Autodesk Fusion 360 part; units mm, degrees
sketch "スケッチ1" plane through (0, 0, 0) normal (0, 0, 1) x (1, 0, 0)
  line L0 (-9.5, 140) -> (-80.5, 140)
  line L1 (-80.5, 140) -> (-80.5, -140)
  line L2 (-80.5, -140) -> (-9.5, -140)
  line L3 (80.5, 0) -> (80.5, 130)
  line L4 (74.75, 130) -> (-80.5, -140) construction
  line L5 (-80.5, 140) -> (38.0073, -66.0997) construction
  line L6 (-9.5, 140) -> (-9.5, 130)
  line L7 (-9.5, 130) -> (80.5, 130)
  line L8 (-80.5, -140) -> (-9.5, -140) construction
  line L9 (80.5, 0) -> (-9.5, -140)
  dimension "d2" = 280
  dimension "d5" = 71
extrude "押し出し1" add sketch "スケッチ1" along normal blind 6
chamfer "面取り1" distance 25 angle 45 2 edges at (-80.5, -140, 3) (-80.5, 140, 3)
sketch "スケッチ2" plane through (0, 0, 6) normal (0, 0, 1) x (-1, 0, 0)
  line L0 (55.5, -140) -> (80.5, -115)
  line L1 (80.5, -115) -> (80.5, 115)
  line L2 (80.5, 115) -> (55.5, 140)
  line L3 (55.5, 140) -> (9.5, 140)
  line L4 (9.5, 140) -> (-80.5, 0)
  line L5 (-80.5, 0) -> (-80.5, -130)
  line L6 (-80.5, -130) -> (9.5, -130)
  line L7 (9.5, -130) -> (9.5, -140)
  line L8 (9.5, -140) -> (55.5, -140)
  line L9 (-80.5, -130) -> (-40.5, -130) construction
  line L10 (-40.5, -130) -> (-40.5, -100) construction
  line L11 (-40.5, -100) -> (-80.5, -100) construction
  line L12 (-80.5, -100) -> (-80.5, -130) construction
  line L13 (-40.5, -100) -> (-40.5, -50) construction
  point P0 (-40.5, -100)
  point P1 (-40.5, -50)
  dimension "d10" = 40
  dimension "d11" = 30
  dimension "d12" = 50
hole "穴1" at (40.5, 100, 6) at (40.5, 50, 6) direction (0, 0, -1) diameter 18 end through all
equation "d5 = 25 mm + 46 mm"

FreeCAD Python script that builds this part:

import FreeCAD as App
import Part
import Sketcher

V = App.Vector


def edges_at(feature, points):
    """Names of the edges that pass closest to the given points."""
    edges = feature.Shape.Edges
    near = lambda p: min(range(len(edges)), key=lambda i: edges[i].distToShape(Part.Vertex(*p))[0])
    return sorted({f"Edge{near(p) + 1}" for p in points})

doc = App.newDocument("Part")
body = doc.addObject("PartDesign::Body", "Body")

sketch1 = body.newObject("Sketcher::SketchObject", "Sketch")
sketch1.AttachmentSupport = (doc.getObject("XY_Plane"), [""])
sketch1.MapMode = "FlatFace"
sketch1.addGeometry([
    Part.LineSegment(V(-10, 130, 0), V(-10, 140, 0)),
    Part.LineSegment(V(-10, 140, 0), V(-80, 140, 0)),
    Part.LineSegment(V(-80, 140, 0), V(-80, -140, 0)),
    Part.LineSegment(V(-80, -140, 0), V(-10, -140, 0)),
    Part.LineSegment(V(-10, -140, 0), V(80, 0, 0)),
    Part.LineSegment(V(80, 0, 0), V(80, 130, 0)),
    Part.LineSegment(V(80, 130, 0), V(-10, 130, 0)),
], False)
sketch1.addConstraint([
    Sketcher.Constraint("Coincident", 0, 2, 1, 1),
    Sketcher.Constraint("Coincident", 1, 2, 2, 1),
    Sketcher.Constraint("Coincident", 2, 2, 3, 1),
    Sketcher.Constraint("Coincident", 3, 2, 4, 1),
    Sketcher.Constraint("Coincident", 4, 2, 5, 1),
    Sketcher.Constraint("Coincident", 5, 2, 6, 1),
    Sketcher.Constraint("Coincident", 6, 2, 0, 1),
    Sketcher.Constraint("Vertical", 0),
    Sketcher.Constraint("Horizontal", 1),
    Sketcher.Constraint("Vertical", 2),
    Sketcher.Constraint("Horizontal", 3),
    Sketcher.Constraint("Vertical", 5),
    Sketcher.Constraint("Horizontal", 6),
    Sketcher.Constraint("Symmetric", 0, 2, 3, 2, -1),
    Sketcher.Constraint("PointOnObject", 4, 2, -1),
    Sketcher.Constraint("DistanceX", 1, 2, 1, 1, 71.0),
    Sketcher.Constraint("DistanceY", 2, 2, 2, 1, 280.0),
    Sketcher.Constraint("DistanceX", 6, 2, 6, 1, 90.0),
    Sketcher.Constraint("DistanceY", 0, 1, 0, 2, 10.0),
    Sketcher.Constraint("DistanceX", 0, 2, -1, 1, 9.5),
])
pad1 = body.newObject("PartDesign::Pad", "Pad")
pad1.Profile = sketch1
pad1.Length = 6
doc.recompute()

chamfer = body.newObject("PartDesign::Chamfer", "Chamfer")
chamfer.Base = (pad1, edges_at(pad1, [(-80.5, -140, 3), (-80.5, 140, 3)]))
chamfer.Size = 25

sketch2 = body.newObject("Sketcher::SketchObject", "Sketch001")
sketch2.AttachmentSupport = (doc.getObject("XY_Plane"), [""])
sketch2.MapMode = "FlatFace"
sketch2.AttachmentOffset = App.Placement(V(0, 0, 6), App.Rotation())
sketch2.addGeometry([
    Part.Circle(V(40, 100, 0), V(0, 0, 1), 9),
    Part.Circle(V(40, 50, 0), V(0, 0, 1), 9),
], False)
sketch2.addConstraint([
    Sketcher.Constraint("Equal", 0, 1),
    Sketcher.Constraint("Vertical", 0, 3, 1, 3),
    Sketcher.Constraint("Diameter", 0, 18.0),
    Sketcher.Constraint("DistanceY", -1, 1, 0, 3, 100.0),
    Sketcher.Constraint("DistanceY", -1, 1, 1, 3, 50.0),
    Sketcher.Constraint("DistanceX", -1, 1, 0, 3, 40.5),
])
doc.recompute()
hole = body.newObject("PartDesign::Hole", "Hole")
hole.Profile = sketch2
hole.ThreadType = "None"
hole.Diameter = 18
hole.DepthType = "ThroughAll"

doc.recompute()
